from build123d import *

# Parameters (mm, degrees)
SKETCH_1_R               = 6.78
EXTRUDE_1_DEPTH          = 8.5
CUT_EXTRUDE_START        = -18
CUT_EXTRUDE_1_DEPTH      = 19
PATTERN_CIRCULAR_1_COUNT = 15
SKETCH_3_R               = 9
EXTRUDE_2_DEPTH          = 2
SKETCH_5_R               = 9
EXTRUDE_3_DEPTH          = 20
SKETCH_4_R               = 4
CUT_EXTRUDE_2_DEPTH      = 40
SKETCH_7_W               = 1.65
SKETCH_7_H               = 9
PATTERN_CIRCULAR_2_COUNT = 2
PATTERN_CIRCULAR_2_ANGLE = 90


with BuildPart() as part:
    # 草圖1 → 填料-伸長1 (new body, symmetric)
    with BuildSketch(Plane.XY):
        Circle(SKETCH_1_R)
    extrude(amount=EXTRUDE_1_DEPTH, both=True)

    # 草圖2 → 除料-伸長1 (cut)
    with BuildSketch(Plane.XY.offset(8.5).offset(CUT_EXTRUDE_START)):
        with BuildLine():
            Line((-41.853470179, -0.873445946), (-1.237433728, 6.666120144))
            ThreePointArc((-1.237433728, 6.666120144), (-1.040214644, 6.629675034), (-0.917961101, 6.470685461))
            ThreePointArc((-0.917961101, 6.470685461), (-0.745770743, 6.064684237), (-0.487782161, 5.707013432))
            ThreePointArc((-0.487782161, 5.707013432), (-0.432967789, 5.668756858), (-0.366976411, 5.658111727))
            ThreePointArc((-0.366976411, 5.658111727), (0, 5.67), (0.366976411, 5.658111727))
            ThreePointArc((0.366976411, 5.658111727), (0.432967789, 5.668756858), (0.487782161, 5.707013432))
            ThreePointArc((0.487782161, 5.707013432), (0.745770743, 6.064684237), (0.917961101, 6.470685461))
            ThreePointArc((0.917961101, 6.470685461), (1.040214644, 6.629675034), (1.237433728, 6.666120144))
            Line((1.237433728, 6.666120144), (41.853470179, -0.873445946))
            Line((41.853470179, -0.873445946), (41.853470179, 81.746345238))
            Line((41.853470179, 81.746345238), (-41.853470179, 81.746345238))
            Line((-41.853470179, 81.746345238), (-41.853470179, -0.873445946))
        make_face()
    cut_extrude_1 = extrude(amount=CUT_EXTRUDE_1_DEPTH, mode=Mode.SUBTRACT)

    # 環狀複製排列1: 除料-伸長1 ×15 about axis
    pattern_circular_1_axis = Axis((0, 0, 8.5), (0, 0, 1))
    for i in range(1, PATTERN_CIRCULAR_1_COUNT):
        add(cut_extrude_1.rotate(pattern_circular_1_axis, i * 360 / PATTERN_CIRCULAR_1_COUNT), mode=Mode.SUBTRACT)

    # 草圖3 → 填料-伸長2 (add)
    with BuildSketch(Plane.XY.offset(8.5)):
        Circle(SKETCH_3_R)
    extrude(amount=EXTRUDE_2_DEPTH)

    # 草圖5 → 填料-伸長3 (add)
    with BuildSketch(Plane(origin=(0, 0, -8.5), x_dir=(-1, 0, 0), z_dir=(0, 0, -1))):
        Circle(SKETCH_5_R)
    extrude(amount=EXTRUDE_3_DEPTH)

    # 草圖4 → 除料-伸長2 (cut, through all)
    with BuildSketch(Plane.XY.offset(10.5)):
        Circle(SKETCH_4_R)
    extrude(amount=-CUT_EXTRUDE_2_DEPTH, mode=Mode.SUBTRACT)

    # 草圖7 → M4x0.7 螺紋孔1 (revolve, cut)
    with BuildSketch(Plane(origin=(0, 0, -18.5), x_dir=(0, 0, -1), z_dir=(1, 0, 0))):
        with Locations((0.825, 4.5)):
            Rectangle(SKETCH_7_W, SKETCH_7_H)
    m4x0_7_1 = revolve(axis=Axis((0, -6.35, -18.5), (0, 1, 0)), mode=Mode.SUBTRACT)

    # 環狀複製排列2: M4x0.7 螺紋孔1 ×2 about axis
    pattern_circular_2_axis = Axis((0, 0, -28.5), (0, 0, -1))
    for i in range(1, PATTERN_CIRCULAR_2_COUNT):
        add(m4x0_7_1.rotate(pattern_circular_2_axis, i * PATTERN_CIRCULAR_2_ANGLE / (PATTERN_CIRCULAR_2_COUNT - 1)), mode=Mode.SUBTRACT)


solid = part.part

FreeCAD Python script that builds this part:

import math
import FreeCAD as App
import Part
import Sketcher

V = App.Vector
Q = App.Units.Quantity

doc = App.newDocument("Part")
params = doc.addObject("Spreadsheet::Sheet", "Params")
for row, (alias, value) in enumerate([
    ("sketch1_diameter", "13.56 mm"),
    ("pad1_length", "17 mm"),
    ("sketch2_radius", "0.28 mm"),
    ("sketch2_radius2", "0.15 mm"),
    ("sketch2_radius3", "5.67 mm"),
    ("pocket1_length", "19 mm"),
    ("sketch3_diameter", "18 mm"),
    ("pad2_length", "2 mm"),
    ("sketch4_diameter", "18 mm"),
    ("pad3_length", "20 mm"),
    ("sketch5_diameter", "8 mm"),
    ("sketch6_width", "9 mm"),
    ("sketch6_height", "1.65 mm"),
    ("groove_angle", "360 deg"),
], start=1):
    params.set(f"A{row}", alias)
    params.set(f"B{row}", "=" + value)
    params.setAlias(f"B{row}", alias)

body = doc.addObject("PartDesign::Body", "Body")

sketch1 = doc.addObject("Sketcher::SketchObject", "Sketch")
body.addObject(sketch1)
sketch1.AttachmentSupport = (doc.XY_Plane, [""])
sketch1.MapMode = "FlatFace"
sketch1.addGeometry(Part.Circle(V(0, 0, 0), V(0, 0, 1), 7), False)
sketch1.addConstraint(Sketcher.Constraint("Coincident", 0, 3, -1, 1))
sketch1.addConstraint(Sketcher.Constraint("Diameter", 0, Q("13.56 mm")))
sketch1.setExpression("Constraints[1]", "Params.sketch1_diameter")
pad1 = doc.addObject("PartDesign::Pad", "Pad")
body.addObject(pad1)
pad1.Profile = sketch1
pad1.setExpression("Length", "Params.pad1_length")
pad1.Midplane = True

sketch2 = doc.addObject("Sketcher::SketchObject", "Sketch001")
body.addObject(sketch2)
sketch2.AttachmentSupport = (doc.XY_Plane, [""])
sketch2.MapMode = "FlatFace"
sketch2.AttachmentOffset = App.Placement(V(0, 0, -9.5), App.Rotation())
sketch2.addGeometry(Part.LineSegment(V(-41.85, -0.87, 0), V(-1.24, 6.67, 0)), False)
sketch2.addGeometry(Part.ArcOfCircle(Part.Circle(V(-1.19, 6.39, 0), V(0, 0, 1), 0.28), math.radians(17), math.radians(101)), False)
sketch2.addGeometry(Part.ArcOfCircle(Part.Circle(V(0.98, 7.03, 0), V(0, 0, 1), 1.98), math.radians(-163), math.radians(-138)), False)
sketch2.addGeometry(Part.ArcOfCircle(Part.Circle(V(-0.38, 5.81, 0), V(0, 0, 1), 0.15), math.radians(-138), math.radians(-86)), False)
sketch2.addGeometry(Part.ArcOfCircle(Part.Circle(V(0, 0, 0), V(0, 0, 1), 5.67), math.radians(86.29), math.radians(93.71)), False)
sketch2.addGeometry(Part.ArcOfCircle(Part.Circle(V(0.38, 5.81, 0), V(0, 0, 1), 0.15), math.radians(-94), math.radians(-42)), False)
sketch2.addGeometry(Part.ArcOfCircle(Part.Circle(V(-0.98, 7.03, 0), V(0, 0, 1), 1.98), math.radians(-42), math.radians(-17)), False)
sketch2.addGeometry(Part.ArcOfCircle(Part.Circle(V(1.19, 6.39, 0), V(0, 0, 1), 0.28), math.radians(79), math.radians(163)), False)
sketch2.addGeometry(Part.LineSegment(V(1.24, 6.67, 0), V(41.85, -0.87, 0)), False)
sketch2.addGeometry(Part.LineSegment(V(41.85, -0.87, 0), V(41.85, 81.75, 0)), False)
sketch2.addGeometry(Part.LineSegment(V(41.85, 81.75, 0), V(-41.85, 81.75, 0)), False)
sketch2.addGeometry(Part.LineSegment(V(-41.85, 81.75, 0), V(-41.85, -0.87, 0)), False)
sketch2.addConstraint(Sketcher.Constraint("Tangent", 0, 2, 1, 2))
sketch2.addConstraint(Sketcher.Constraint("Tangent", 1, 1, 2, 1))
sketch2.addConstraint(Sketcher.Constraint("Tangent", 2, 2, 3, 1))
sketch2.addConstraint(Sketcher.Constraint("Tangent", 3, 2, 4, 2))
sketch2.addConstraint(Sketcher.Constraint("Tangent", 4, 1, 5, 1))
sketch2.addConstraint(Sketcher.Constraint("Tangent", 5, 2, 6, 1))
sketch2.addConstraint(Sketcher.Constraint("Tangent", 6, 2, 7, 2))
sketch2.addConstraint(Sketcher.Constraint("Tangent", 7, 1, 8, 1))
sketch2.addConstraint(Sketcher.Constraint("Coincident", 8, 2, 9, 1))
sketch2.addConstraint(Sketcher.Constraint("Coincident", 9, 2, 10, 1))
sketch2.addConstraint(Sketcher.Constraint("Coincident", 10, 2, 11, 1))
sketch2.addConstraint(Sketcher.Constraint("Coincident", 11, 2, 0, 1))
sketch2.addConstraint(Sketcher.Constraint("Vertical", 9))
sketch2.addConstraint(Sketcher.Constraint("Horizontal", 10))
sketch2.addConstraint(Sketcher.Constraint("Vertical", 11))
sketch2.addConstraint(Sketcher.Constraint("Coincident", 4, 3, -1, 1))
sketch2.addConstraint(Sketcher.Constraint("Equal", 3, 5))
sketch2.addConstraint(Sketcher.Constraint("Equal", 2, 6))
sketch2.addConstraint(Sketcher.Constraint("Equal", 1, 7))
sketch2.addConstraint(Sketcher.Constraint("Symmetric", 2, 3, 6, 3, -2))
sketch2.addConstraint(Sketcher.Constraint("Symmetric", 0, 2, 7, 1, -2))
sketch2.addConstraint(Sketcher.Constraint("Horizontal", 8, 2, 11, 2))
sketch2.addConstraint(Sketcher.Constraint("Radius", 1, Q("0.28 mm")))
sketch2.addConstraint(Sketcher.Constraint("Radius", 3, Q("0.15 mm")))
sketch2.addConstraint(Sketcher.Constraint("Radius", 4, Q("5.67 mm")))
sketch2.addConstraint(Sketcher.Constraint("Radius", 2, Q("1.975 mm")))
sketch2.addConstraint(Sketcher.Constraint("DistanceX", 6, 3, 2, 3, Q("1.95 mm")))
sketch2.addConstraint(Sketcher.Constraint("DistanceY", -1, 1, 2, 3, Q("7.034 mm")))
sketch2.addConstraint(Sketcher.Constraint("DistanceX", 10, 2, 10, 1, Q("83.70694 mm")))
sketch2.addConstraint(Sketcher.Constraint("DistanceY", 9, 1, 9, 2, Q("82.619791 mm")))
sketch2.addConstraint(Sketcher.Constraint("DistanceX", 1, 3, -1, 1, Q("1.18633 mm")))
sketch2.addConstraint(Sketcher.Constraint("DistanceY", 8, 2, 7, 3, Q("7.264269 mm")))
sketch2.setExpression("Constraints[22]", "Params.sketch2_radius")
sketch2.setExpression("Constraints[23]", "Params.sketch2_radius2")
sketch2.setExpression("Constraints[24]", "Params.sketch2_radius3")
pocket1 = doc.addObject("PartDesign::Pocket", "Pocket")
body.addObject(pocket1)
pocket1.Profile = sketch2
pocket1.setExpression("Length", "Params.pocket1_length")
pocket1.Reversed = True
doc.recompute()

polarpattern = doc.addObject("PartDesign::PolarPattern", "PolarPattern")
body.addObject(polarpattern)
polarpattern.Originals = [pocket1]
polarpattern.Axis = (doc.Z_Axis, [""])
polarpattern.Angle = 360
polarpattern.Occurrences = 15
body.Tip = polarpattern

sketch3 = doc.addObject("Sketcher::SketchObject", "Sketch002")
body.addObject(sketch3)
sketch3.AttachmentSupport = (doc.XY_Plane, [""])
sketch3.MapMode = "FlatFace"
sketch3.AttachmentOffset = App.Placement(V(0, 0, 8.5), App.Rotation())
sketch3.addGeometry(Part.Circle(V(0, 0, 0), V(0, 0, 1), 9), False)
sketch3.addConstraint(Sketcher.Constraint("Coincident", 0, 3, -1, 1))
sketch3.addConstraint(Sketcher.Constraint("Diameter", 0, Q("18 mm")))
sketch3.setExpression("Constraints[1]", "Params.sketch3_diameter")
pad2 = doc.addObject("PartDesign::Pad", "Pad001")
body.addObject(pad2)
pad2.Profile = sketch3
pad2.setExpression("Length", "Params.pad2_length")

sketch4 = doc.addObject("Sketcher::SketchObject", "Sketch003")
body.addObject(sketch4)
sketch4.AttachmentSupport = (doc.XY_Plane, [""])
sketch4.MapMode = "FlatFace"
sketch4.AttachmentOffset = App.Placement(V(0, 0, -8.5), App.Rotation())
sketch4.addGeometry(Part.Circle(V(0, 0, 0), V(0, 0, 1), 9), False)
sketch4.addConstraint(Sketcher.Constraint("Coincident", 0, 3, -1, 1))
sketch4.addConstraint(Sketcher.Constraint("Diameter", 0, Q("18 mm")))
sketch4.setExpression("Constraints[1]", "Params.sketch4_diameter")
pad3 = doc.addObject("PartDesign::Pad", "Pad002")
body.addObject(pad3)
pad3.Profile = sketch4
pad3.setExpression("Length", "Params.pad3_length")
pad3.Reversed = True

sketch5 = doc.addObject("Sketcher::SketchObject", "Sketch004")
body.addObject(sketch5)
sketch5.AttachmentSupport = (doc.XY_Plane, [""])
sketch5.MapMode = "FlatFace"
sketch5.AttachmentOffset = App.Placement(V(0, 0, 10.5), App.Rotation())
sketch5.addGeometry(Part.Circle(V(0, 0, 0), V(0, 0, 1), 4), False)
sketch5.addConstraint(Sketcher.Constraint("Coincident", 0, 3, -1, 1))
sketch5.addConstraint(Sketcher.Constraint("Diameter", 0, Q("8 mm")))
sketch5.setExpression("Constraints[1]", "Params.sketch5_diameter")
pocket2 = doc.addObject("PartDesign::Pocket", "Pocket001")
body.addObject(pocket2)
pocket2.Profile = sketch5
pocket2.Type = "ThroughAll"

sketch6 = doc.addObject("Sketcher::SketchObject", "Sketch005")
body.addObject(sketch6)
sketch6.AttachmentSupport = (doc.YZ_Plane, [""])
sketch6.MapMode = "FlatFace"
sketch6.addGeometry(Part.LineSegment(V(9, -18.5, 0), V(0, -18.5, 0)), False)
sketch6.addGeometry(Part.LineSegment(V(0, -18.5, 0), V(0, -20.1, 0)), False)
sketch6.addGeometry(Part.LineSegment(V(0, -20.1, 0), V(9, -20.1, 0)), False)
sketch6.addGeometry(Part.LineSegment(V(9, -20.1, 0), V(9, -18.5, 0)), False)
sketch6.addGeometry(Part.LineSegment(V(0, -18.5, 0), V(9, -18.5, 0)), True)
sketch6.addConstraint(Sketcher.Constraint("Coincident", 0, 2, 1, 1))
sketch6.addConstraint(Sketcher.Constraint("Coincident", 1, 2, 2, 1))
sketch6.addConstraint(Sketcher.Constraint("Coincident", 2, 2, 3, 1))
sketch6.addConstraint(Sketcher.Constraint("Coincident", 3, 2, 0, 1))
sketch6.addConstraint(Sketcher.Constraint("Horizontal", 0))
sketch6.addConstraint(Sketcher.Constraint("Vertical", 1))
sketch6.addConstraint(Sketcher.Constraint("Horizontal", 2))
sketch6.addConstraint(Sketcher.Constraint("Vertical", 3))
sketch6.addConstraint(Sketcher.Constraint("Horizontal", 4))
sketch6.addConstraint(Sketcher.Constraint("Coincident", 4, 1, 0, 2))
sketch6.addConstraint(Sketcher.Constraint("PointOnObject", 0, 2, -2))
sketch6.addConstraint(Sketcher.Constraint("Vertical", 2, 2, 4, 2))
sketch6.addConstraint(Sketcher.Constraint("DistanceX", 0, 2, 0, 1, Q("9 mm")))
sketch6.addConstraint(Sketcher.Constraint("DistanceY", 1, 2, 1, 1, Q("1.65 mm")))
sketch6.addConstraint(Sketcher.Constraint("DistanceY", 0, 2, -1, 1, Q("18.5 mm")))
sketch6.setExpression("Constraints[12]", "Params.sketch6_width")
sketch6.setExpression("Constraints[13]", "Params.sketch6_height")
groove = doc.addObject("PartDesign::Groove", "Groove")
body.addObject(groove)
groove.Profile = sketch6
groove.ReferenceAxis = (sketch6, ["Axis0"])
groove.setExpression("Angle", "Params.groove_angle")
doc.recompute()

polarpattern2 = doc.addObject("PartDesign::PolarPattern", "PolarPattern001")
body.addObject(polarpattern2)
polarpattern2.Originals = [groove]
polarpattern2.Axis = (doc.Z_Axis, [""])
polarpattern2.Angle = 90
polarpattern2.Occurrences = 2
polarpattern2.Reversed = True
body.Tip = polarpattern2

doc.recompute()
